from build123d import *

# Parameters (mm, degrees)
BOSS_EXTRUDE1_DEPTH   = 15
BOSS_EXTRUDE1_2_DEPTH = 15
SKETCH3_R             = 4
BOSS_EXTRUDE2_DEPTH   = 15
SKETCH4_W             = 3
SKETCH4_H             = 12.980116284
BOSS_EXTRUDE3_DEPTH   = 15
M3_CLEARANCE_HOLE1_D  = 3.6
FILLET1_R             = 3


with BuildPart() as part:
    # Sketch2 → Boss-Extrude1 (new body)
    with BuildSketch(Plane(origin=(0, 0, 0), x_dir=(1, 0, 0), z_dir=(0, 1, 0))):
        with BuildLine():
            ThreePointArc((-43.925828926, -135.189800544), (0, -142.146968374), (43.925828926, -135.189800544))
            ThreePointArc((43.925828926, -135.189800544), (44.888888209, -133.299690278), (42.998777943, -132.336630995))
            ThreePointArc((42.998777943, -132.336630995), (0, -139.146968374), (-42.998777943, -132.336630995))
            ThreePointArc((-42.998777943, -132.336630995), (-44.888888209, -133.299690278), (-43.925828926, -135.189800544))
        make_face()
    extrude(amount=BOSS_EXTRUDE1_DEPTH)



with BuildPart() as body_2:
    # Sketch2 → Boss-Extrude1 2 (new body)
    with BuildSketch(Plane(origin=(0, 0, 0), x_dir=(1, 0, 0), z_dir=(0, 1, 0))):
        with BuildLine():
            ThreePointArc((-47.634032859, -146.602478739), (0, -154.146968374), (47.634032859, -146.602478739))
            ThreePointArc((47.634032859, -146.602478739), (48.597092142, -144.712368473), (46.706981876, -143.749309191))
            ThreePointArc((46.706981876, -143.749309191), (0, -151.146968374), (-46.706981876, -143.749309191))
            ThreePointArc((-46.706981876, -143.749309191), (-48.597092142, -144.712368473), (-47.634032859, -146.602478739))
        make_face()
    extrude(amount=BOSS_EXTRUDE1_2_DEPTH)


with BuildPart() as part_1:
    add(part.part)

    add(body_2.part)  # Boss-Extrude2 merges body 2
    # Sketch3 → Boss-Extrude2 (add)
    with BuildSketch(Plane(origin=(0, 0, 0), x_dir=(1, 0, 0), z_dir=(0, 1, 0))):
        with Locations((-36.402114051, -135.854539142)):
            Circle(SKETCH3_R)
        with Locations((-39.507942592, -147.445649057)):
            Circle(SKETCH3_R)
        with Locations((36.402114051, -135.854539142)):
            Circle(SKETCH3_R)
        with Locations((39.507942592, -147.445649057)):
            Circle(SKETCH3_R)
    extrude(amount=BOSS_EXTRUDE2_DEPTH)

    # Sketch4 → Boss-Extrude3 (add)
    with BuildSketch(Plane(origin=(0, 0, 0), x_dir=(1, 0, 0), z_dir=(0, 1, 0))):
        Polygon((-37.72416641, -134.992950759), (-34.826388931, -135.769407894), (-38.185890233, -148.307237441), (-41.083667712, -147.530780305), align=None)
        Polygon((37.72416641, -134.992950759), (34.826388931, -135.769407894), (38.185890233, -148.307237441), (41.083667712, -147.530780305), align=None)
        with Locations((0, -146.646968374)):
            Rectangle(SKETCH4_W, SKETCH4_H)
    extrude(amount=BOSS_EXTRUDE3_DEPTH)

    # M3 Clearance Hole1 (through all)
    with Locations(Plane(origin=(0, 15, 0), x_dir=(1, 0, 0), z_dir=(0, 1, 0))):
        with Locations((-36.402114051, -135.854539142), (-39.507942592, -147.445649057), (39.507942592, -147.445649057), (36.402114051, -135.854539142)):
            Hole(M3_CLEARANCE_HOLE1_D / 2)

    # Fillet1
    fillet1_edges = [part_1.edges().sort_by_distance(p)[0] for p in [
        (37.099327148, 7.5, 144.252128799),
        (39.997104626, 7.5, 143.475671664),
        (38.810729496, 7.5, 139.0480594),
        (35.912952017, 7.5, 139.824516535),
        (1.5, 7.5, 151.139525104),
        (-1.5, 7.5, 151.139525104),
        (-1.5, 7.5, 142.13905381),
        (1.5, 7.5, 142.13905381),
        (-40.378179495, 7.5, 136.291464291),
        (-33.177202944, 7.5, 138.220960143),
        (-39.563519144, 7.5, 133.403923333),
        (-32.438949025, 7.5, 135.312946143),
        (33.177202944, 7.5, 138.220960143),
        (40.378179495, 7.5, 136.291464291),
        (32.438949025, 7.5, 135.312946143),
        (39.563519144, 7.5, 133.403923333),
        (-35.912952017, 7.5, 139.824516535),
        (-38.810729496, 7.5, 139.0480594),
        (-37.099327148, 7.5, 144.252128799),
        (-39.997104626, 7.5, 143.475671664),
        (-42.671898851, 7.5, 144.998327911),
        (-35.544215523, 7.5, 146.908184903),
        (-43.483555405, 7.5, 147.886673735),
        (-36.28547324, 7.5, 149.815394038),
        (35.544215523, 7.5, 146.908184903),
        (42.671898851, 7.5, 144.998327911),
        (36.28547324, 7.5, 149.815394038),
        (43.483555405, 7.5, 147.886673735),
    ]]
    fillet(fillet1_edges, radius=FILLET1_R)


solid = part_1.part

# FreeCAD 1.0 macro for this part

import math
import FreeCAD as App
import Part
import Sketcher
Q = App.Units.Quantity


def edges_at(feature, points):
    """Names of the edges that pass closest to the given points."""
    edges = feature.Shape.Edges
    near = lambda p: min(range(len(edges)), key=lambda i: edges[i].distToShape(Part.Vertex(*p))[0])
    return sorted({f"Edge{near(p) + 1}" for p in points})

doc = App.newDocument("Part")
body = doc.addObject("PartDesign::Body", "Body")

sketch1 = doc.addObject("Sketcher::SketchObject", "Sketch")
body.addObject(sketch1)
sketch1.AttachmentSupport = (doc.XZ_Plane, [""])
sketch1.MapMode = "FlatFace"
sketch1.addGeometry([
    Part.ArcOfCircle(Part.Circle(App.Vector(0, 0, 0), App.Vector(0, 0, 1), 142.1), math.radians(72), math.radians(108)),
    Part.ArcOfCircle(Part.Circle(App.Vector(43.5, 133.8, 0), App.Vector(0, 0, 1), 1.5), math.radians(-108), math.radians(72)),
    Part.ArcOfCircle(Part.Circle(App.Vector(0, 0, 0), App.Vector(0, 0, 1), 139.1), math.radians(72), math.radians(108)),
    Part.ArcOfCircle(Part.Circle(App.Vector(-43.5, 133.8, 0), App.Vector(0, 0, 1), 1.5), math.radians(108), math.radians(288)),
], False)
sketch1.addConstraint([
    Sketcher.Constraint("Tangent", 0, 1, 1, 2),
    Sketcher.Constraint("Tangent", 1, 1, 2, 1),
    Sketcher.Constraint("Tangent", 2, 2, 3, 2),
    Sketcher.Constraint("Tangent", 3, 1, 0, 2),
    Sketcher.Constraint("Coincident", 0, 3, -1, 1),
    Sketcher.Constraint("Coincident", 2, 3, -1, 1),
    Sketcher.Constraint("Horizontal", 1, 3, 3, 3),
    Sketcher.Constraint("Radius", 1, Q("1.5 mm")),
    Sketcher.Constraint("Radius", 0, Q("142.146968 mm")),
    Sketcher.Constraint("DistanceY", -1, 1, 0, 1, Q("135.189801 mm")),
])
pad1 = doc.addObject("PartDesign::Pad", "Pad")
body.addObject(pad1)
pad1.Profile = sketch1
pad1.Length = 15
pad1.Reversed = True
body2 = doc.addObject("PartDesign::Body", "Body001")

sketch2 = doc.addObject("Sketcher::SketchObject", "Sketch001")
body2.addObject(sketch2)
sketch2.AttachmentSupport = (doc.getObject("XZ_Plane001"), [""])
sketch2.MapMode = "FlatFace"
sketch2.addGeometry([
    Part.ArcOfCircle(Part.Circle(App.Vector(0, 0, 0), App.Vector(0, 0, 1), 154.1), math.radians(72), math.radians(108)),
    Part.ArcOfCircle(Part.Circle(App.Vector(47.2, 145.2, 0), App.Vector(0, 0, 1), 1.5), math.radians(-108), math.radians(72)),
    Part.ArcOfCircle(Part.Circle(App.Vector(0, 0, 0), App.Vector(0, 0, 1), 151.1), math.radians(72), math.radians(108)),
    Part.ArcOfCircle(Part.Circle(App.Vector(-47.2, 145.2, 0), App.Vector(0, 0, 1), 1.5), math.radians(108), math.radians(288)),
], False)
sketch2.addConstraint([
    Sketcher.Constraint("Tangent", 0, 1, 1, 2),
    Sketcher.Constraint("Tangent", 1, 1, 2, 1),
    Sketcher.Constraint("Tangent", 2, 2, 3, 2),
    Sketcher.Constraint("Tangent", 3, 1, 0, 2),
    Sketcher.Constraint("Coincident", 0, 3, -1, 1),
    Sketcher.Constraint("Coincident", 2, 3, -1, 1),
    Sketcher.Constraint("Horizontal", 1, 3, 3, 3),
    Sketcher.Constraint("Radius", 1, Q("1.5 mm")),
    Sketcher.Constraint("Radius", 0, Q("154.146968 mm")),
    Sketcher.Constraint("DistanceY", -1, 1, 0, 1, Q("146.602479 mm")),
])
pad2 = doc.addObject("PartDesign::Pad", "Pad001")
body2.addObject(pad2)
pad2.Profile = sketch2
pad2.Length = 15
pad2.Reversed = True
body.AllowCompound = True
doc.recompute()

boolean = doc.addObject("PartDesign::Boolean", "Boolean")
body.addObject(boolean)
boolean.Type = "Fuse"
boolean.addObjects([body2])

sketch3 = doc.addObject("Sketcher::SketchObject", "Sketch002")
body.addObject(sketch3)
sketch3.AttachmentSupport = (doc.XZ_Plane, [""])
sketch3.MapMode = "FlatFace"
sketch3.addGeometry([
    Part.Circle(App.Vector(-36.4, 135.9, 0), App.Vector(0, 0, 1), 4),
    Part.Circle(App.Vector(-39.5, 147.4, 0), App.Vector(0, 0, 1), 4),
    Part.Circle(App.Vector(36.4, 135.9, 0), App.Vector(0, 0, 1), 4),
    Part.Circle(App.Vector(39.5, 147.4, 0), App.Vector(0, 0, 1), 4),
], False)
sketch3.addConstraint([
    Sketcher.Constraint("Equal", 0, 1),
    Sketcher.Constraint("Equal", 1, 2),
    Sketcher.Constraint("Equal", 2, 3),
    Sketcher.Constraint("Symmetric", 0, 3, 2, 3, -2),
    Sketcher.Constraint("Symmetric", 1, 3, 3, 3, -2),
    Sketcher.Constraint("Diameter", 0, Q("8 mm")),
    Sketcher.Constraint("DistanceY", -1, 1, 0, 3, Q("135.854539 mm")),
    Sketcher.Constraint("DistanceY", -1, 1, 1, 3, Q("147.445649 mm")),
    Sketcher.Constraint("DistanceX", 1, 3, 0, 3, Q("3.105829 mm")),
    Sketcher.Constraint("DistanceX", 0, 3, 2, 3, Q("72.804228 mm")),
])
pad3 = doc.addObject("PartDesign::Pad", "Pad002")
body.addObject(pad3)
pad3.Profile = sketch3
pad3.Length = 15
pad3.Reversed = True

sketch4 = doc.addObject("Sketcher::SketchObject", "Sketch003")
body.addObject(sketch4)
sketch4.AttachmentSupport = (doc.XZ_Plane, [""])
sketch4.MapMode = "FlatFace"
sketch4.addGeometry([
    Part.LineSegment(App.Vector(-34.8, 135.8, 0), App.Vector(-37.7, 135, 0)),
    Part.LineSegment(App.Vector(-37.7, 135, 0), App.Vector(-41.1, 147.5, 0)),
    Part.LineSegment(App.Vector(-41.1, 147.5, 0), App.Vector(-38.2, 148.3, 0)),
    Part.LineSegment(App.Vector(-38.2, 148.3, 0), App.Vector(-34.8, 135.8, 0)),
    Part.LineSegment(App.Vector(37.7, 135, 0), App.Vector(34.8, 135.8, 0)),
    Part.LineSegment(App.Vector(34.8, 135.8, 0), App.Vector(38.2, 148.3, 0)),
    Part.LineSegment(App.Vector(38.2, 148.3, 0), App.Vector(41.1, 147.5, 0)),
    Part.LineSegment(App.Vector(41.1, 147.5, 0), App.Vector(37.7, 135, 0)),
    Part.LineSegment(App.Vector(-1.5, 140.2, 0), App.Vector(-1.5, 153.1, 0)),
    Part.LineSegment(App.Vector(-1.5, 153.1, 0), App.Vector(1.5, 153.1, 0)),
    Part.LineSegment(App.Vector(1.5, 153.1, 0), App.Vector(1.5, 140.2, 0)),
    Part.LineSegment(App.Vector(1.5, 140.2, 0), App.Vector(-1.5, 140.2, 0)),
], False)
sketch4.addConstraint([
    Sketcher.Constraint("Coincident", 0, 2, 1, 1),
    Sketcher.Constraint("Coincident", 1, 2, 2, 1),
    Sketcher.Constraint("Coincident", 2, 2, 3, 1),
    Sketcher.Constraint("Coincident", 3, 2, 0, 1),
    Sketcher.Constraint("Coincident", 4, 2, 5, 1),
    Sketcher.Constraint("Coincident", 5, 2, 6, 1),
    Sketcher.Constraint("Coincident", 6, 2, 7, 1),
    Sketcher.Constraint("Coincident", 7, 2, 4, 1),
    Sketcher.Constraint("Coincident", 8, 2, 9, 1),
    Sketcher.Constraint("Coincident", 9, 2, 10, 1),
    Sketcher.Constraint("Coincident", 10, 2, 11, 1),
    Sketcher.Constraint("Coincident", 11, 2, 8, 1),
    Sketcher.Constraint("Vertical", 8),
    Sketcher.Constraint("Horizontal", 9),
    Sketcher.Constraint("Vertical", 10),
    Sketcher.Constraint("Horizontal", 11),
    Sketcher.Constraint("Symmetric", 3, 2, 4, 2, -2),
    Sketcher.Constraint("Symmetric", 2, 2, 5, 2, -2),
    Sketcher.Constraint("Symmetric", 1, 2, 6, 2, -2),
    Sketcher.Constraint("Symmetric", 0, 2, 7, 2, -2),
    Sketcher.Constraint("Perpendicular", 0, 1),
    Sketcher.Constraint("Perpendicular", 1, 2),
    Sketcher.Constraint("Perpendicular", 2, 3),
    Sketcher.Constraint("DistanceX", 9, 1, 9, 2, Q("3 mm")),
    Sketcher.Constraint("Angle", 0, Q("-165 deg")),
    Sketcher.Constraint("Distance", 0, Q("3 mm")),
    Sketcher.Constraint("DistanceX", 8, 2, -1, 1, Q("1.5 mm")),
    Sketcher.Constraint("DistanceX", 1, 2, 0, 2, Q("3.359501 mm")),
    Sketcher.Constraint("DistanceY", 8, 1, 8, 2, Q("12.980116 mm")),
    Sketcher.Constraint("DistanceY", -1, 1, 0, 2, Q("134.992951 mm")),
    Sketcher.Constraint("DistanceX", 2, 2, -1, 1, Q("38.18589 mm")),
    Sketcher.Constraint("DistanceY", -1, 1, 10, 2, Q("140.15691 mm")),
])
pad4 = doc.addObject("PartDesign::Pad", "Pad003")
body.addObject(pad4)
pad4.Profile = sketch4
pad4.Length = 15
pad4.Reversed = True

sketch5 = doc.addObject("Sketcher::SketchObject", "Sketch004")
body.addObject(sketch5)
sketch5.AttachmentSupport = (doc.XZ_Plane, [""])
sketch5.MapMode = "FlatFace"
sketch5.AttachmentOffset = App.Placement(App.Vector(0, 0, -15), App.Rotation())
sketch5.addGeometry([
    Part.Circle(App.Vector(-36.4, 135.9, 0), App.Vector(0, 0, 1), 1.8),
    Part.Circle(App.Vector(-39.5, 147.4, 0), App.Vector(0, 0, 1), 1.8),
    Part.Circle(App.Vector(39.5, 147.4, 0), App.Vector(0, 0, 1), 1.8),
    Part.Circle(App.Vector(36.4, 135.9, 0), App.Vector(0, 0, 1), 1.8),
], False)
sketch5.addConstraint([
    Sketcher.Constraint("Equal", 0, 1),
    Sketcher.Constraint("Equal", 1, 2),
    Sketcher.Constraint("Equal", 2, 3),
    Sketcher.Constraint("Symmetric", 1, 3, 2, 3, -2),
    Sketcher.Constraint("Symmetric", 0, 3, 3, 3, -2),
    Sketcher.Constraint("Diameter", 0, Q("3.6 mm")),
    Sketcher.Constraint("DistanceY", -1, 1, 0, 3, Q("135.854539 mm")),
    Sketcher.Constraint("DistanceY", -1, 1, 1, 3, Q("147.445649 mm")),
    Sketcher.Constraint("DistanceX", 1, 3, 0, 3, Q("3.105829 mm")),
    Sketcher.Constraint("DistanceX", 0, 3, 3, 3, Q("72.804228 mm")),
])
doc.recompute()
hole = doc.addObject("PartDesign::Hole", "Hole")
body.addObject(hole)
hole.Profile = sketch5
hole.ThreadType = "None"
hole.Diameter = 3.6
hole.DepthType = "ThroughAll"
hole.Reversed = True
doc.recompute()

fillet = doc.addObject("PartDesign::Fillet", "Fillet")
body.addObject(fillet)
fillet.Base = (hole, edges_at(hole, [
    (37.099, 7.5, 144.252),
    (39.997, 7.5, 143.476),
    (38.811, 7.5, 139.048),
    (35.913, 7.5, 139.825),
    (1.5, 7.5, 151.14),
    (-1.5, 7.5, 151.14),
    (-1.5, 7.5, 142.139),
    (1.5, 7.5, 142.139),
    (-40.378, 7.5, 136.291),
    (-33.177, 7.5, 138.221),
    (-39.564, 7.5, 133.404),
    (-32.439, 7.5, 135.313),
    (33.177, 7.5, 138.221),
    (40.378, 7.5, 136.291),
    (32.439, 7.5, 135.313),
    (39.564, 7.5, 133.404),
    (-35.913, 7.5, 139.825),
    (-38.811, 7.5, 139.048),
    (-37.099, 7.5, 144.252),
    (-39.997, 7.5, 143.476),
    (-42.672, 7.5, 144.998),
    (-35.544, 7.5, 146.908),
    (-43.484, 7.5, 147.887),
    (-36.285, 7.5, 149.815),
    (35.544, 7.5, 146.908),
    (42.672, 7.5, 144.998),
    (36.285, 7.5, 149.815),
    (43.484, 7.5, 147.887),
]))
fillet.Radius = 3

doc.recompute()
